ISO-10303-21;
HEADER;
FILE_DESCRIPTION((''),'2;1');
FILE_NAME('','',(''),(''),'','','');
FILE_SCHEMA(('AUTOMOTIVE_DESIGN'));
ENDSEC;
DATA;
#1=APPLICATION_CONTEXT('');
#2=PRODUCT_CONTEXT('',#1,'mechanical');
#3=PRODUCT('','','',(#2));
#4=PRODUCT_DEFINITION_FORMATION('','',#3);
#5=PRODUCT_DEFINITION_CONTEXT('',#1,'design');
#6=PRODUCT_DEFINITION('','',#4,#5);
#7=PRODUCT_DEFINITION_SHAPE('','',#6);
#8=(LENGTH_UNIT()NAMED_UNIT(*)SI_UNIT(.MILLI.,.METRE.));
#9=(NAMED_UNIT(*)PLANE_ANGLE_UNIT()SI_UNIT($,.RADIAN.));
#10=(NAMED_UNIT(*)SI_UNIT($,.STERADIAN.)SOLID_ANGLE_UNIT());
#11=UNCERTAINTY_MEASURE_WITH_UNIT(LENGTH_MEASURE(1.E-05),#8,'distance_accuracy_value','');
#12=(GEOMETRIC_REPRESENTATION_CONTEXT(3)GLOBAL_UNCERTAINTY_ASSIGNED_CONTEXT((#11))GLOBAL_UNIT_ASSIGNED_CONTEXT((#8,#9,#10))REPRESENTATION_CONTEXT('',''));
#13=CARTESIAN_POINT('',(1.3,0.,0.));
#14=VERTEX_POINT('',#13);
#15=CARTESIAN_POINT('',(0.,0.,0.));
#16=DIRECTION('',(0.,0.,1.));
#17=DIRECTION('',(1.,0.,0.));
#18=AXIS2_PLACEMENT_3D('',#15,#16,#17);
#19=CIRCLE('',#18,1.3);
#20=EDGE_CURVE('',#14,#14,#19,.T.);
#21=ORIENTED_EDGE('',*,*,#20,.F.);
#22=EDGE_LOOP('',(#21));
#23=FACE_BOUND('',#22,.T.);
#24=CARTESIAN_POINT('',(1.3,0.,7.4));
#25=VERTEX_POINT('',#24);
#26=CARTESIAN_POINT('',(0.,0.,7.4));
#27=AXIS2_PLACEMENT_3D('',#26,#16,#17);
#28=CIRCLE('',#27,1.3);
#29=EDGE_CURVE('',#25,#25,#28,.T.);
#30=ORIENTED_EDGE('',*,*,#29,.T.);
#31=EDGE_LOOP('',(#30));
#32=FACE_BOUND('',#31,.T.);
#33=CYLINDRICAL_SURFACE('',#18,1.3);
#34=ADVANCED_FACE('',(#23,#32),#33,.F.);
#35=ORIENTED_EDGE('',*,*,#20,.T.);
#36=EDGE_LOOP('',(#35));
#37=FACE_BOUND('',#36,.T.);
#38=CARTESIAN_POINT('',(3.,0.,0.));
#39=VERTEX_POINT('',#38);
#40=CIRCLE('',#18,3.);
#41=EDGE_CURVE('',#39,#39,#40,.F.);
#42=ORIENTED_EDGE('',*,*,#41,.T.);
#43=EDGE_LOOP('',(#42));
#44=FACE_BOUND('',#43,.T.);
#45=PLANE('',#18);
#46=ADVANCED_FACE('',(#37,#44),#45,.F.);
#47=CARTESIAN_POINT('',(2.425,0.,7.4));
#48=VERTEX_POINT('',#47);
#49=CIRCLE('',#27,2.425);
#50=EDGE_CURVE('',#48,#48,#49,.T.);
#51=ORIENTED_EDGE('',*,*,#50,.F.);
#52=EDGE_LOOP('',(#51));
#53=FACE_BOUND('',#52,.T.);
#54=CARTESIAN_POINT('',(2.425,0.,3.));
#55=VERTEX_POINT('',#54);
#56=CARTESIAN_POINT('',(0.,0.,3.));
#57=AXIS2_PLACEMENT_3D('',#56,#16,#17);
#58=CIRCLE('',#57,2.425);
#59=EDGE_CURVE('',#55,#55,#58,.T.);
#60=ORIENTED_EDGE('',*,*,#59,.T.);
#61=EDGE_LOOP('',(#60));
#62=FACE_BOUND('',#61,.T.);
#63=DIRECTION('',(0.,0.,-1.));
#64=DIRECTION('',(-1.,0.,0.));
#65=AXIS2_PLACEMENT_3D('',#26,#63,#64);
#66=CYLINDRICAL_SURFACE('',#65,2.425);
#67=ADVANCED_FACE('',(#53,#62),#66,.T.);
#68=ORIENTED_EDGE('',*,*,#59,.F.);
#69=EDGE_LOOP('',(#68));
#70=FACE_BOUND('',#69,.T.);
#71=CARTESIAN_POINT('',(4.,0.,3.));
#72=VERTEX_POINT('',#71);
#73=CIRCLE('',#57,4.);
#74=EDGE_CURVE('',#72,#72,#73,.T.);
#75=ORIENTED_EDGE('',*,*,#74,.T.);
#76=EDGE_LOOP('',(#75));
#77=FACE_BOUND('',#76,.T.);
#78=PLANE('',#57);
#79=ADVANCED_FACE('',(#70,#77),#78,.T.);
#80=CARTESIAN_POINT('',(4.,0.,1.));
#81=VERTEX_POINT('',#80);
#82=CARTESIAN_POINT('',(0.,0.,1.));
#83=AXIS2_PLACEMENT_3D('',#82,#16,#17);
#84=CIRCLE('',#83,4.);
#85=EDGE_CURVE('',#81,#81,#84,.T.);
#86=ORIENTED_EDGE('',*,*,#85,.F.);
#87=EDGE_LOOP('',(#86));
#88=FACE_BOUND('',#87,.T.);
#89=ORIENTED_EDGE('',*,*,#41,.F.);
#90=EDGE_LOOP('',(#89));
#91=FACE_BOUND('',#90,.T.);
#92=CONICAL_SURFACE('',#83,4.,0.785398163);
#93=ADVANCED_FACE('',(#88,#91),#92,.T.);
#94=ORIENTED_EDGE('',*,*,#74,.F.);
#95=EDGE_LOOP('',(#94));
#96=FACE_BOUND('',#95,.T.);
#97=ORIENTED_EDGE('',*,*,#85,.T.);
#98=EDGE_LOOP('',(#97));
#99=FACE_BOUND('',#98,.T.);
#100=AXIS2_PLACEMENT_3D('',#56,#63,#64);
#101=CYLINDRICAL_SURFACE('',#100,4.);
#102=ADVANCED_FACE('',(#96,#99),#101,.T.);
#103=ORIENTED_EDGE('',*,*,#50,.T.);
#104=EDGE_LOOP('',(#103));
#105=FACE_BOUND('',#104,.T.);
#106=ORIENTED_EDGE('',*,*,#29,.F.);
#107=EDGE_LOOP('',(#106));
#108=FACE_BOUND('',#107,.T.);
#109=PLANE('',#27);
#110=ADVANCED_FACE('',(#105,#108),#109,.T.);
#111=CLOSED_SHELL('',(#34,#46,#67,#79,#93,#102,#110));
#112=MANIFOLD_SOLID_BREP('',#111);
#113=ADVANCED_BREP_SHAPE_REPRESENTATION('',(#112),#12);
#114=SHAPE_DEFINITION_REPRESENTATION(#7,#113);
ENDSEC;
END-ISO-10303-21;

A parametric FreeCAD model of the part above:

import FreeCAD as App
import Part
import Sketcher
from FreeCAD import Vector
Q = App.Units.Quantity


def edges_at(feature, points):
    """Names of the edges that pass closest to the given points."""
    edges = feature.Shape.Edges
    near = lambda p: min(range(len(edges)), key=lambda i: edges[i].distToShape(Part.Vertex(*p))[0])
    return sorted({f"Edge{near(p) + 1}" for p in points})

doc = App.newDocument("Part")
body = doc.addObject("PartDesign::Body", "Body")

sketch1 = body.newObject("Sketcher::SketchObject", "Sketch")
sketch1.AttachmentSupport = (doc.getObject("XY_Plane"), [""])
sketch1.MapMode = "FlatFace"
sketch1.addGeometry(Part.Circle(Vector(0, 0, 0), Vector(0, 0, 1), 4), False)
sketch1.addConstraint([
    Sketcher.Constraint("Coincident", 0, 3, -1, 1),
    Sketcher.Constraint("Diameter", 0, Q("8 mm")),
])
pad1 = body.newObject("PartDesign::Pad", "Pad")
pad1.Profile = sketch1
pad1.Length = 3

sketch2 = body.newObject("Sketcher::SketchObject", "Sketch001")
sketch2.AttachmentSupport = (doc.getObject("XY_Plane"), [""])
sketch2.MapMode = "FlatFace"
sketch2.AttachmentOffset = App.Placement(Vector(0, 0, 3), App.Rotation())
sketch2.addGeometry(Part.Circle(Vector(0, 0, 0), Vector(0, 0, 1), 2.425), False)
sketch2.addConstraint([
    Sketcher.Constraint("Coincident", 0, 3, -1, 1),
    Sketcher.Constraint("Diameter", 0, Q("4.85 mm")),
])
pad2 = body.newObject("PartDesign::Pad", "Pad001")
pad2.Profile = sketch2
pad2.Length = 4.4

sketch3 = body.newObject("Sketcher::SketchObject", "Sketch002")
sketch3.AttachmentSupport = (doc.getObject("XY_Plane"), [""])
sketch3.MapMode = "FlatFace"
sketch3.AttachmentOffset = App.Placement(Vector(0, 0, 7.4), App.Rotation())
sketch3.addGeometry(Part.Circle(Vector(0, 0, 0), Vector(0, 0, 1), 1.3), False)
sketch3.addConstraint([
    Sketcher.Constraint("Coincident", 0, 3, -1, 1),
    Sketcher.Constraint("Diameter", 0, Q("2.6 mm")),
])
pocket1 = body.newObject("PartDesign::Pocket", "Pocket")
pocket1.Profile = sketch3
pocket1.Type = "ThroughAll"
doc.recompute()

chamfer = body.newObject("PartDesign::Chamfer", "Chamfer")
chamfer.Base = (pocket1, edges_at(pocket1, [(-4, 0, 0)]))
chamfer.Size = 1

doc.recompute()
